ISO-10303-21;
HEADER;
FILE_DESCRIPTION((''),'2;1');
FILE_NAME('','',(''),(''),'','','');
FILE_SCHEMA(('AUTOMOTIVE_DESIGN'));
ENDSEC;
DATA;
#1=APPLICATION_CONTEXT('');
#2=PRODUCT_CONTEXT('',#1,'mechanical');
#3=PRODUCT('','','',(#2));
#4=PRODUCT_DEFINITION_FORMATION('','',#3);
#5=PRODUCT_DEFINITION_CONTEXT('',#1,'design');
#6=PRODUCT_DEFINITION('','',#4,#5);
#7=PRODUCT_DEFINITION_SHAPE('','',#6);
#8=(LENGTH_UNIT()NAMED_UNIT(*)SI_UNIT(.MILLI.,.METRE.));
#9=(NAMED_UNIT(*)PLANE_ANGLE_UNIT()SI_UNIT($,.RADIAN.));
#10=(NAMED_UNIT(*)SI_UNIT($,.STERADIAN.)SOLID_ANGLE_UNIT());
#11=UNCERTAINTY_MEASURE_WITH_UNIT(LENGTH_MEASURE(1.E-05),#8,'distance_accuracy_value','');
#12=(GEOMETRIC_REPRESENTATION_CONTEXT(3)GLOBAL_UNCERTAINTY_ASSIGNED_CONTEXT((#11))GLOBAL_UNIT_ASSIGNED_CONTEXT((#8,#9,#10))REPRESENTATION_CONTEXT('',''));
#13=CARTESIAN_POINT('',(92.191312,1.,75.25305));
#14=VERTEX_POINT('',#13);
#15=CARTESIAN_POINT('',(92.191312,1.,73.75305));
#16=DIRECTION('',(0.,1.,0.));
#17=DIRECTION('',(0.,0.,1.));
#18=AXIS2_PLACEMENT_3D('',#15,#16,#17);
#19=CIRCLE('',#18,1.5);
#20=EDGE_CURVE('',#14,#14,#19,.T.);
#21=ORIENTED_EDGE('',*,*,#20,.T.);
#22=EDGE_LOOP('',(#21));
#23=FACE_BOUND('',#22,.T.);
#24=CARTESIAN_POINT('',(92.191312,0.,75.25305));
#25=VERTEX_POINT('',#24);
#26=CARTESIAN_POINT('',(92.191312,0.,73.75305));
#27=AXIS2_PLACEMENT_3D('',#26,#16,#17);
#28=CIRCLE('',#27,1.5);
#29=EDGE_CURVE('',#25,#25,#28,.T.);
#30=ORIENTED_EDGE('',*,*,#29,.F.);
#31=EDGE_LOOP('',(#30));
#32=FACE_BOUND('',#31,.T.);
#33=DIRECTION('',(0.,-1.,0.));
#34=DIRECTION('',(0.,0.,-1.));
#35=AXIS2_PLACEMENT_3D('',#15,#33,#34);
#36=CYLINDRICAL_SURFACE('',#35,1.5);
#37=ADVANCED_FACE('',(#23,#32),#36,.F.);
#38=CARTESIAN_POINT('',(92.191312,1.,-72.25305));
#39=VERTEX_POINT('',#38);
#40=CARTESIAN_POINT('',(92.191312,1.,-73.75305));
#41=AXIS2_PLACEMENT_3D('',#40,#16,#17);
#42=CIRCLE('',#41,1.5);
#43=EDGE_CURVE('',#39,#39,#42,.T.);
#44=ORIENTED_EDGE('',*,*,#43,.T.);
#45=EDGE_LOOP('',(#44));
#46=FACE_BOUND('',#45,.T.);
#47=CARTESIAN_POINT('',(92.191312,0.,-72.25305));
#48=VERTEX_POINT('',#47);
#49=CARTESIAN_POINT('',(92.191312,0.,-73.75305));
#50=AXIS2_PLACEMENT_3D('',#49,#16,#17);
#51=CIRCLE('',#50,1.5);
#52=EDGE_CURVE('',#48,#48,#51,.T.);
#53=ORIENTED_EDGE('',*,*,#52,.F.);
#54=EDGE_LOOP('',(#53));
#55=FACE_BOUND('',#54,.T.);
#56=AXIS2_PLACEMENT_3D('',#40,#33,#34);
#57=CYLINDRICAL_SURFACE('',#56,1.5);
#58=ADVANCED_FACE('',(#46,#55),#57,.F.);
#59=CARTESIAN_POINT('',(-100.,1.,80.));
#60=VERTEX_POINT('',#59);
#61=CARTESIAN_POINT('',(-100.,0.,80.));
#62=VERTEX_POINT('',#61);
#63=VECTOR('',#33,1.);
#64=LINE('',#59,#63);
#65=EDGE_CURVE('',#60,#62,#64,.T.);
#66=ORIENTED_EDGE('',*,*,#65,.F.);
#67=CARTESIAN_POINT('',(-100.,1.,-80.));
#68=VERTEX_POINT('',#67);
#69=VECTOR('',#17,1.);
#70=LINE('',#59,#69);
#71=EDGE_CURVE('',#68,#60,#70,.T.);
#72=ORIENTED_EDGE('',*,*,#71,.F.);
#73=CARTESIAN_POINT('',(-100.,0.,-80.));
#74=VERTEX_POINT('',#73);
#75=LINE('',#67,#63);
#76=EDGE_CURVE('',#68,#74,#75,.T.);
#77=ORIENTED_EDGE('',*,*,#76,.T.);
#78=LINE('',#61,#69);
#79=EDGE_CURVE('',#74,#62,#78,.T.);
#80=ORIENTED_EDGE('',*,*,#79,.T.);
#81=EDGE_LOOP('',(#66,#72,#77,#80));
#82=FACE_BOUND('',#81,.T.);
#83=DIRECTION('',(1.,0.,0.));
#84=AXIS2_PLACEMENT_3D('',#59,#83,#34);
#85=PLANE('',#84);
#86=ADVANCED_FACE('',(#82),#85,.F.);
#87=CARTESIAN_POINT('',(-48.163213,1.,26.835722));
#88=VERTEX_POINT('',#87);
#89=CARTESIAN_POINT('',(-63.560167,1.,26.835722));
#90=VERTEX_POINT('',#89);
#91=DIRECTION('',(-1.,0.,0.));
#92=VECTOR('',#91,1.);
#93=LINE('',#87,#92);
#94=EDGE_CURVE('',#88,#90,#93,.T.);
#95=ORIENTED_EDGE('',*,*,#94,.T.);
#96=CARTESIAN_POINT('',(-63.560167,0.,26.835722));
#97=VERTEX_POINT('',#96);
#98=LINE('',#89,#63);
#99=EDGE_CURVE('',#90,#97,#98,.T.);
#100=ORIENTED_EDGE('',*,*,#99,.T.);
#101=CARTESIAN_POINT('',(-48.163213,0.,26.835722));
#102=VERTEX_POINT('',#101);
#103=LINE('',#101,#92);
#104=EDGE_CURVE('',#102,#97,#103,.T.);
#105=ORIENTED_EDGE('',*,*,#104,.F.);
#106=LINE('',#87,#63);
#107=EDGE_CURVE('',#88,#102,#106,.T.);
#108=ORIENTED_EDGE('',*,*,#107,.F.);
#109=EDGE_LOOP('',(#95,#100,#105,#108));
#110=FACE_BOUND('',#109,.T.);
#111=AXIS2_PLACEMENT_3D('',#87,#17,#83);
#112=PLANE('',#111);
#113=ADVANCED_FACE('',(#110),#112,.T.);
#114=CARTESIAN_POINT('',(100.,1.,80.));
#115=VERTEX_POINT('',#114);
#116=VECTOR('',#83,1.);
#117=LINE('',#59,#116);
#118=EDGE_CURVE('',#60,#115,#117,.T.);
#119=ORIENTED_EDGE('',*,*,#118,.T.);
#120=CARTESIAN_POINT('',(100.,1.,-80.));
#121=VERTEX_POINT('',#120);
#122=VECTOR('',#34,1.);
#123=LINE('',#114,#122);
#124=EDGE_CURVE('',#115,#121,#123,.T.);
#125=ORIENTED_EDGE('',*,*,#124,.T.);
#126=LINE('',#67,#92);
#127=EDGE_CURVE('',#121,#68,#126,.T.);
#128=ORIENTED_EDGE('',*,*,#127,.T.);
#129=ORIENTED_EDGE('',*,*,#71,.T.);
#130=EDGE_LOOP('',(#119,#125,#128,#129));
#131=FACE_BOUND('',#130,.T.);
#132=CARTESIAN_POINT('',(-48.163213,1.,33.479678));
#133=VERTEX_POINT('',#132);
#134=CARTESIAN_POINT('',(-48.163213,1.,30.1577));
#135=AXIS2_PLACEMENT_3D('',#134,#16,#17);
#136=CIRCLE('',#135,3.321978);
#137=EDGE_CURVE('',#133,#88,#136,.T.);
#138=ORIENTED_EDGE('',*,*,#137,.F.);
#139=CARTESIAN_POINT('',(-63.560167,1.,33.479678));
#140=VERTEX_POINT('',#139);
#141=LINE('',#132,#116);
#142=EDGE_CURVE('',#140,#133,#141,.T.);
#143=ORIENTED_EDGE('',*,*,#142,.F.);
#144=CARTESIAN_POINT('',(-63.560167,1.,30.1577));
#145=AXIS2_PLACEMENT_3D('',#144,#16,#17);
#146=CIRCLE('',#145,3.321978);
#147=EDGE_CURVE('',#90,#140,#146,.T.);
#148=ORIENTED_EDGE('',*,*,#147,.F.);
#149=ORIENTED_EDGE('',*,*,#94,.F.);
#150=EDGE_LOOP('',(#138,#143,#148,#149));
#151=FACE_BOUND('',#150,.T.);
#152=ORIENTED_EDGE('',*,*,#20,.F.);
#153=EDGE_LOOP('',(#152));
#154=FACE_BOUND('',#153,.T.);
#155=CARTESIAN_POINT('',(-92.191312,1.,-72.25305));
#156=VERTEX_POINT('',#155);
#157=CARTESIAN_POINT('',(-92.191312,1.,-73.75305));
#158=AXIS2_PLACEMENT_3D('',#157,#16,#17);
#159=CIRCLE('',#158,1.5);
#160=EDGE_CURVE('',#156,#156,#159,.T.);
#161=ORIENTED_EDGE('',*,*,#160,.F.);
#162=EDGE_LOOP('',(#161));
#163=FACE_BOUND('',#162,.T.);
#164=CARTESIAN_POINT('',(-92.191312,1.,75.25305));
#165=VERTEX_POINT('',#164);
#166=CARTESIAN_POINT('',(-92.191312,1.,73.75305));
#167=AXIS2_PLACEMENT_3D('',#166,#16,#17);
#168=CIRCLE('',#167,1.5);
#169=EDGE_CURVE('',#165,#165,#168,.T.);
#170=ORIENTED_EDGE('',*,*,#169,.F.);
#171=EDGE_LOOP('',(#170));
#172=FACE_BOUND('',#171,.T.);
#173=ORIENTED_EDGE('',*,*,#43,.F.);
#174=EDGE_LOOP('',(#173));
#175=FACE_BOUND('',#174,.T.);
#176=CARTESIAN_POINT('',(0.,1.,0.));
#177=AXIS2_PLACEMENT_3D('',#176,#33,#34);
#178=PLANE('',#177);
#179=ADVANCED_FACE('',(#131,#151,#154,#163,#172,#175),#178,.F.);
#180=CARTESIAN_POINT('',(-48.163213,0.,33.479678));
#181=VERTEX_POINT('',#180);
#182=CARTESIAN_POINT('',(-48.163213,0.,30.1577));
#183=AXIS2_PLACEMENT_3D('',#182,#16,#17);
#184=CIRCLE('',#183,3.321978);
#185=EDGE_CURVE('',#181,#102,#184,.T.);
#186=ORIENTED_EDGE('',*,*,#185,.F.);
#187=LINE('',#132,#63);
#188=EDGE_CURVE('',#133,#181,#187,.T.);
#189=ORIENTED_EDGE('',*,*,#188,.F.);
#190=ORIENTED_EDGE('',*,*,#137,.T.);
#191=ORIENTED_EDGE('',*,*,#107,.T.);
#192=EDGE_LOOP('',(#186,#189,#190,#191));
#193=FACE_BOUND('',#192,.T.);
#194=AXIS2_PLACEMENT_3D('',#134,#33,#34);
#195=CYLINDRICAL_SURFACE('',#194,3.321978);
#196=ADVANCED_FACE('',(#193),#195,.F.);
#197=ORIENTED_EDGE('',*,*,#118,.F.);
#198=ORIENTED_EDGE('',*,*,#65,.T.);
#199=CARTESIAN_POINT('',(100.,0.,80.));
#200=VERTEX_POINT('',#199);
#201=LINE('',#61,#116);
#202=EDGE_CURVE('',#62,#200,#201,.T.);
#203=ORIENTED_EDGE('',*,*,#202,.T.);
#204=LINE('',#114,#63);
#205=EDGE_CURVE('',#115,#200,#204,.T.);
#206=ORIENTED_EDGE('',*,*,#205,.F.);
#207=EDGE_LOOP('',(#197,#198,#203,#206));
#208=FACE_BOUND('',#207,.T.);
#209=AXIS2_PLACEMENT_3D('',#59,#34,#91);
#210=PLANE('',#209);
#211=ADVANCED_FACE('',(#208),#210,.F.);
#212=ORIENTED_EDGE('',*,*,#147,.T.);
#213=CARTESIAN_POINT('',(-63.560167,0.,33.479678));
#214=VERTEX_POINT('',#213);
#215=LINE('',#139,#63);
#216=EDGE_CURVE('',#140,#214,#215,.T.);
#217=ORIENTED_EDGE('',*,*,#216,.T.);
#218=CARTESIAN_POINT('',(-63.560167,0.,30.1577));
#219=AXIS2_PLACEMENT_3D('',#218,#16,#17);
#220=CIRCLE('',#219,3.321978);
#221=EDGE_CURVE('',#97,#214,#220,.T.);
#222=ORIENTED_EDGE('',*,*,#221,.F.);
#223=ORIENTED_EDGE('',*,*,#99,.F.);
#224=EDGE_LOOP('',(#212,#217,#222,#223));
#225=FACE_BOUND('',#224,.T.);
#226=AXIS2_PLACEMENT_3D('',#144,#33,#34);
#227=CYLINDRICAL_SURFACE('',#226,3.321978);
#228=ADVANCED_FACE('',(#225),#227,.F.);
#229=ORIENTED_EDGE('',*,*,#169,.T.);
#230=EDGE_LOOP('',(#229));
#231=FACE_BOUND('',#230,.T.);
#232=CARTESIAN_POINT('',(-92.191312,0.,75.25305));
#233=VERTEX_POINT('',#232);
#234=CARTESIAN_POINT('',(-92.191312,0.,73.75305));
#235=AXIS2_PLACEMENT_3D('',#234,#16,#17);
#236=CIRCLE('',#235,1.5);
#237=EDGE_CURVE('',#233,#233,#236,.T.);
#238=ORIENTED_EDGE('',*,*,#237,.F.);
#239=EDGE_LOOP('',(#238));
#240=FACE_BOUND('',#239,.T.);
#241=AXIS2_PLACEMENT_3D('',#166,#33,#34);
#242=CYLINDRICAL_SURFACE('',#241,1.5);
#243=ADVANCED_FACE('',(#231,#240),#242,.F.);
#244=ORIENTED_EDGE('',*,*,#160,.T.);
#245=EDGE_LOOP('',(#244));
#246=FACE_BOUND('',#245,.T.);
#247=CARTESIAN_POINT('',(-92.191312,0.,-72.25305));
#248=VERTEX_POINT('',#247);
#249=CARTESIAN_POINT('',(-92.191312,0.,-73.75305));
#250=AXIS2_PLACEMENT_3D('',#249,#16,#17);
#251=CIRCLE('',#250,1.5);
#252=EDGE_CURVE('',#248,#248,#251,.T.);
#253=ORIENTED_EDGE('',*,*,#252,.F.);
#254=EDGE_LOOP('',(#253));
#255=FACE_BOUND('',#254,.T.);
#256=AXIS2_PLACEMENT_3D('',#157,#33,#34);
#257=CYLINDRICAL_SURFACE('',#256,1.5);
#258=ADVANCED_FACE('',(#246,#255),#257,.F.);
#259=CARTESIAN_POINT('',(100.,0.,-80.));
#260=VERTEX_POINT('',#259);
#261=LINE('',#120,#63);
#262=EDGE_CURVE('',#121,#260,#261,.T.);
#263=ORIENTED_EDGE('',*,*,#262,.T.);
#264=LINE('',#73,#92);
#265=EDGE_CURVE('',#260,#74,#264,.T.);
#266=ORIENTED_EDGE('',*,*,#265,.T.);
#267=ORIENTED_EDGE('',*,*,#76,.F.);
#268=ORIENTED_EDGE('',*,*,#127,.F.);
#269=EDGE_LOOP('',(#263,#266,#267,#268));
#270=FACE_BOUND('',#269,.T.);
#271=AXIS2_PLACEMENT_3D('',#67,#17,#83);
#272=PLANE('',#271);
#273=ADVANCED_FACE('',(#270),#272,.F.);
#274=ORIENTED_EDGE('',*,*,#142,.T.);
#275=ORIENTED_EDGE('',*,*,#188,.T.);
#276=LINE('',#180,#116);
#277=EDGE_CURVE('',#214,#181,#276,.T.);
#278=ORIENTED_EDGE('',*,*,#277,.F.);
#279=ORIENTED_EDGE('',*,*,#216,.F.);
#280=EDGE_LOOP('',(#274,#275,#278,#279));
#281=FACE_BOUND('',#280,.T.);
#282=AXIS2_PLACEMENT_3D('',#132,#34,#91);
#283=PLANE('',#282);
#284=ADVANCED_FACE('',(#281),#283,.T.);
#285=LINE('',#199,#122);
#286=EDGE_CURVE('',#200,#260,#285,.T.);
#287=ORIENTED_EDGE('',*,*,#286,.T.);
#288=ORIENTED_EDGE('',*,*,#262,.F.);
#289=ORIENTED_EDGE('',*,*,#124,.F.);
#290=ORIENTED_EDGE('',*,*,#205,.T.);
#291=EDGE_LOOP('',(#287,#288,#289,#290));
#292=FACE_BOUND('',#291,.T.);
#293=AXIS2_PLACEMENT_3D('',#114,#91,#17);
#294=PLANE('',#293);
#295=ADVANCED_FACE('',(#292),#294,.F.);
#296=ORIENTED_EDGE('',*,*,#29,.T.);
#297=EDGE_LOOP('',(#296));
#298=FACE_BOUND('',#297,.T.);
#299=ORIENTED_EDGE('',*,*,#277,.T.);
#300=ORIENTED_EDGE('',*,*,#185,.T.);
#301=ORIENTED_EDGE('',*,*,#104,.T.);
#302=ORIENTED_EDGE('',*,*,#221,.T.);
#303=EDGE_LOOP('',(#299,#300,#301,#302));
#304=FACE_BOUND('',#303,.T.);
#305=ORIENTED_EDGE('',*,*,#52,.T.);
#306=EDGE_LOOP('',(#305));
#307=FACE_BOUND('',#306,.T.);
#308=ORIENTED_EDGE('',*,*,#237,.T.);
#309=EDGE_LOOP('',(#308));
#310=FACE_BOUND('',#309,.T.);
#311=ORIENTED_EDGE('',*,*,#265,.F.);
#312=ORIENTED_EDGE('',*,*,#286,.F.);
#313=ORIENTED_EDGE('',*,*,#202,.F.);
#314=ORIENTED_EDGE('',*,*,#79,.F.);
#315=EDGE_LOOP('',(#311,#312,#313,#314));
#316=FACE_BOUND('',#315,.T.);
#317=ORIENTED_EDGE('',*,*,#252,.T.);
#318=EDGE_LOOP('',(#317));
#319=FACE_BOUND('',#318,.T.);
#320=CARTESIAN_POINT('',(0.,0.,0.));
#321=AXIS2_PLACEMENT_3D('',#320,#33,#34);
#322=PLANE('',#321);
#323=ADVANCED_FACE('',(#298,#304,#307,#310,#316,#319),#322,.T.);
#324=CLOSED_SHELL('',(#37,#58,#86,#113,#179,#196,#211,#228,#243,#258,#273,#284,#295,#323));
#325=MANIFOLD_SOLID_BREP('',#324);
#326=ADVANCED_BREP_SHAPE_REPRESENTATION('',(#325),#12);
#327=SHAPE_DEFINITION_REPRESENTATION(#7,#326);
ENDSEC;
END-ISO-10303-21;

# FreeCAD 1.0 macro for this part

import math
import FreeCAD as App
import Part
import Sketcher
Q = App.Units.Quantity

doc = App.newDocument("Part")
params = doc.addObject("Spreadsheet::Sheet", "Params")
for row, (alias, value) in enumerate([
    ("sketch1_diameter", "3 mm"),
    ("sketch1_width", "200 mm"),
    ("sketch1_height", "160 mm"),
    ("pad1_length", "1 mm"),
], start=1):
    params.set(f"A{row}", alias)
    params.set(f"B{row}", "=" + value)
    params.setAlias(f"B{row}", alias)

body = doc.addObject("PartDesign::Body", "Body")

# Sketch on XZ plane
sketch1 = doc.addObject("Sketcher::SketchObject", "Sketch")
body.addObject(sketch1)
sketch1.AttachmentSupport = (doc.XZ_Plane, [""])
sketch1.MapMode = "FlatFace"
sketch1.addGeometry(Part.LineSegment(App.Vector(-100, -80, 0), App.Vector(-100, 80, 0)), False)
sketch1.addGeometry(Part.LineSegment(App.Vector(-100, 80, 0), App.Vector(100, 80, 0)), False)
sketch1.addGeometry(Part.LineSegment(App.Vector(100, 80, 0), App.Vector(100, -80, 0)), False)
sketch1.addGeometry(Part.LineSegment(App.Vector(100, -80, 0), App.Vector(-100, -80, 0)), False)
sketch1.addGeometry(Part.Circle(App.Vector(-92.2, 73.8, 0), App.Vector(0, 0, 1), 1.5), False)
sketch1.addGeometry(Part.ArcOfCircle(Part.Circle(App.Vector(-48.2, 30.2, 0), App.Vector(0, 0, 1), 3.3), math.radians(-90), math.radians(90)), False)
sketch1.addGeometry(Part.LineSegment(App.Vector(-48.2, 33.5, 0), App.Vector(-63.6, 33.5, 0)), False)
sketch1.addGeometry(Part.ArcOfCircle(Part.Circle(App.Vector(-63.6, 30.2, 0), App.Vector(0, 0, 1), 3.3), math.radians(90), math.radians(270)), False)
sketch1.addGeometry(Part.LineSegment(App.Vector(-63.6, 26.8, 0), App.Vector(-48.2, 26.8, 0)), False)
sketch1.addGeometry(Part.Circle(App.Vector(92.2, 73.8, 0), App.Vector(0, 0, 1), 1.5), False)
sketch1.addGeometry(Part.Circle(App.Vector(-92.2, -73.8, 0), App.Vector(0, 0, 1), 1.5), False)
sketch1.addGeometry(Part.Circle(App.Vector(92.2, -73.8, 0), App.Vector(0, 0, 1), 1.5), False)
sketch1.addConstraint(Sketcher.Constraint("Coincident", 0, 2, 1, 1))
sketch1.addConstraint(Sketcher.Constraint("Coincident", 1, 2, 2, 1))
sketch1.addConstraint(Sketcher.Constraint("Coincident", 2, 2, 3, 1))
sketch1.addConstraint(Sketcher.Constraint("Coincident", 3, 2, 0, 1))
sketch1.addConstraint(Sketcher.Constraint("Tangent", 5, 2, 6, 1))
sketch1.addConstraint(Sketcher.Constraint("Tangent", 6, 2, 7, 1))
sketch1.addConstraint(Sketcher.Constraint("Tangent", 7, 2, 8, 1))
sketch1.addConstraint(Sketcher.Constraint("Tangent", 8, 2, 5, 1))
sketch1.addConstraint(Sketcher.Constraint("Vertical", 0))
sketch1.addConstraint(Sketcher.Constraint("Horizontal", 1))
sketch1.addConstraint(Sketcher.Constraint("Vertical", 2))
sketch1.addConstraint(Sketcher.Constraint("Horizontal", 3))
sketch1.addConstraint(Sketcher.Constraint("Horizontal", 6))
sketch1.addConstraint(Sketcher.Constraint("Horizontal", 8))
sketch1.addConstraint(Sketcher.Constraint("Equal", 4, 9))
sketch1.addConstraint(Sketcher.Constraint("Equal", 9, 10))
sketch1.addConstraint(Sketcher.Constraint("Equal", 10, 11))
sketch1.addConstraint(Sketcher.Constraint("Symmetric", 9, 3, 10, 3, -1, 1))
sketch1.addConstraint(Sketcher.Constraint("Symmetric", 4, 3, 11, 3, -1, 1))
sketch1.addConstraint(Sketcher.Constraint("Symmetric", 0, 2, 2, 2, -1, 1))
sketch1.addConstraint(Sketcher.Constraint("Symmetric", 4, 3, 9, 3, -2))
sketch1.addConstraint(Sketcher.Constraint("Diameter", 4, Q("3 mm")))
sketch1.addConstraint(Sketcher.Constraint("DistanceX", 1, 1, 1, 2, Q("200 mm")))
sketch1.addConstraint(Sketcher.Constraint("DistanceY", 0, 1, 0, 2, Q("160 mm")))
sketch1.addConstraint(Sketcher.Constraint("Radius", 5, Q("3.321978 mm")))
sketch1.addConstraint(Sketcher.Constraint("DistanceY", -1, 1, 5, 3, Q("30.1577 mm")))
sketch1.addConstraint(Sketcher.Constraint("DistanceX", 4, 3, 5, 3, Q("44.028099 mm")))
sketch1.addConstraint(Sketcher.Constraint("DistanceY", 10, 3, 4, 3, Q("147.506099 mm")))
sketch1.addConstraint(Sketcher.Constraint("DistanceX", 6, 2, 6, 1, Q("15.396954 mm")))
sketch1.addConstraint(Sketcher.Constraint("DistanceX", 4, 3, -1, 1, Q("92.191312 mm")))
sketch1.setExpression("Constraints[21]", "Params.sketch1_diameter")
sketch1.setExpression("Constraints[22]", "Params.sketch1_width")
sketch1.setExpression("Constraints[23]", "Params.sketch1_height")
pad1 = doc.addObject("PartDesign::Pad", "Pad")
body.addObject(pad1)
pad1.Profile = sketch1
pad1.setExpression("Length", "Params.pad1_length")
pad1.Reversed = True

doc.recompute()
